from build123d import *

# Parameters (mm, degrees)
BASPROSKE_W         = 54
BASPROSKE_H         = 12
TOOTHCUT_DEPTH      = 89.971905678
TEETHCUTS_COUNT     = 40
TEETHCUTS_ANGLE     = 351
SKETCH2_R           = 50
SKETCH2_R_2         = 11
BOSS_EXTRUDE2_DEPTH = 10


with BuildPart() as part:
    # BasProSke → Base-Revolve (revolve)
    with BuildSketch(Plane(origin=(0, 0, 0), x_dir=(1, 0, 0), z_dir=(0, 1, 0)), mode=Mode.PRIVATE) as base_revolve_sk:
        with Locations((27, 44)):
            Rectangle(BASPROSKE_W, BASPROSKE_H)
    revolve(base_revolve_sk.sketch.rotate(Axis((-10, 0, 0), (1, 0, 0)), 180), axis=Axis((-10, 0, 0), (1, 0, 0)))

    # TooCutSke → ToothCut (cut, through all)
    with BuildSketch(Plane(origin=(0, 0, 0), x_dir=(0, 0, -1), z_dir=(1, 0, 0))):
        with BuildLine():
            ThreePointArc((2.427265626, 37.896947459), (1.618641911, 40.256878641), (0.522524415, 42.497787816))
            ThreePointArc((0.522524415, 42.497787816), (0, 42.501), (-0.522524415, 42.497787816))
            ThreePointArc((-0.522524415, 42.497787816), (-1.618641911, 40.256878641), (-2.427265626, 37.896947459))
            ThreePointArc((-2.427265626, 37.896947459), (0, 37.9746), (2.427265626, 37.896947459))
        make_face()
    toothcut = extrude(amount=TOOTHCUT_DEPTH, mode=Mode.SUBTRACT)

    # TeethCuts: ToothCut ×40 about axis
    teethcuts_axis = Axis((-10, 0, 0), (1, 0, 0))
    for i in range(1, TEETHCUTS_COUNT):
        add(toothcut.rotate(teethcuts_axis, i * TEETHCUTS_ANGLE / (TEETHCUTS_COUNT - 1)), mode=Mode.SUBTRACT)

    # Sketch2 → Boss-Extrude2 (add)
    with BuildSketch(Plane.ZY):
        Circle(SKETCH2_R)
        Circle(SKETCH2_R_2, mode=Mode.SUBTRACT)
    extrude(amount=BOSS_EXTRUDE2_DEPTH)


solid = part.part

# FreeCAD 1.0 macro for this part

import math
import FreeCAD as App
import Part
import Sketcher

doc = App.newDocument("Part")
body = doc.addObject("PartDesign::Body", "Body")

sketch1 = doc.addObject("Sketcher::SketchObject", "Sketch")
body.addObject(sketch1)
sketch1.AttachmentSupport = (doc.XZ_Plane, [""])
sketch1.MapMode = "FlatFace"
sketch1.addGeometry(Part.LineSegment(App.Vector(0, -50, 0), App.Vector(0, -38, 0)), False)
sketch1.addGeometry(Part.LineSegment(App.Vector(0, -38, 0), App.Vector(54, -38, 0)), False)
sketch1.addGeometry(Part.LineSegment(App.Vector(54, -38, 0), App.Vector(54, -50, 0)), False)
sketch1.addGeometry(Part.LineSegment(App.Vector(54, -50, 0), App.Vector(0, -50, 0)), False)
sketch1.addConstraint(Sketcher.Constraint("Coincident", 0, 2, 1, 1))
sketch1.addConstraint(Sketcher.Constraint("Coincident", 1, 2, 2, 1))
sketch1.addConstraint(Sketcher.Constraint("Coincident", 2, 2, 3, 1))
sketch1.addConstraint(Sketcher.Constraint("Coincident", 3, 2, 0, 1))
sketch1.addConstraint(Sketcher.Constraint("Vertical", 0))
sketch1.addConstraint(Sketcher.Constraint("Horizontal", 1))
sketch1.addConstraint(Sketcher.Constraint("Vertical", 2))
sketch1.addConstraint(Sketcher.Constraint("Horizontal", 3))
sketch1.addConstraint(Sketcher.Constraint("PointOnObject", 0, 2, -2))
sketch1.addConstraint(Sketcher.Constraint("DistanceX", 1, 1, 1, 2, 54.0))
sketch1.addConstraint(Sketcher.Constraint("DistanceY", 0, 1, 0, 2, 12.0))
sketch1.addConstraint(Sketcher.Constraint("DistanceY", 0, 2, -1, 1, 38.0))
revolution = doc.addObject("PartDesign::Revolution", "Revolution")
body.addObject(revolution)
revolution.Profile = sketch1
revolution.ReferenceAxis = (sketch1, ["H_Axis"])
revolution.Angle = 360

sketch2 = doc.addObject("Sketcher::SketchObject", "Sketch001")
body.addObject(sketch2)
sketch2.AttachmentSupport = (doc.YZ_Plane, [""])
sketch2.MapMode = "FlatFace"
sketch2.addGeometry(Part.ArcOfCircle(Part.Circle(App.Vector(32.6, 16.9, 0), App.Vector(0, 0, 1), 20), math.radians(-74.66), math.radians(-60.36)), False)
sketch2.addGeometry(Part.ArcOfCircle(Part.Circle(App.Vector(0, 0, 0), App.Vector(0, 0, 1), 42.5), math.radians(-0.7), math.radians(0.7)), False)
sketch2.addGeometry(Part.ArcOfCircle(Part.Circle(App.Vector(32.6, -16.9, 0), App.Vector(0, 0, 1), 20), math.radians(60.36), math.radians(74.66)), False)
sketch2.addGeometry(Part.ArcOfCircle(Part.Circle(App.Vector(0, 0, 0), App.Vector(0, 0, 1), 38), math.radians(-3.66), math.radians(3.66)), False)
sketch2.addConstraint(Sketcher.Constraint("Coincident", 0, 2, 1, 1))
sketch2.addConstraint(Sketcher.Constraint("Coincident", 1, 2, 2, 1))
sketch2.addConstraint(Sketcher.Constraint("Coincident", 2, 2, 3, 2))
sketch2.addConstraint(Sketcher.Constraint("Coincident", 3, 1, 0, 1))
sketch2.addConstraint(Sketcher.Constraint("Coincident", 1, 3, -1, 1))
sketch2.addConstraint(Sketcher.Constraint("Coincident", 3, 3, -1, 1))
sketch2.addConstraint(Sketcher.Constraint("Equal", 0, 2))
sketch2.addConstraint(Sketcher.Constraint("Symmetric", 0, 3, 2, 3, -1))
sketch2.addConstraint(Sketcher.Constraint("Radius", 0, 20.0))
sketch2.addConstraint(Sketcher.Constraint("Radius", 3, 37.9746))
sketch2.addConstraint(Sketcher.Constraint("Radius", 1, 42.501003))
sketch2.addConstraint(Sketcher.Constraint("DistanceX", -1, 1, 0, 3, 32.606602))
sketch2.addConstraint(Sketcher.Constraint("DistanceY", 2, 3, 0, 2, 16.337829))
pocket1 = doc.addObject("PartDesign::Pocket", "Pocket")
body.addObject(pocket1)
pocket1.Profile = sketch2
pocket1.Type = "ThroughAll"
pocket1.Reversed = True
doc.recompute()

polarpattern = doc.addObject("PartDesign::PolarPattern", "PolarPattern")
body.addObject(polarpattern)
polarpattern.Originals = [pocket1]
polarpattern.Axis = (doc.X_Axis, [""])
polarpattern.Angle = 360
polarpattern.Occurrences = 40
body.Tip = polarpattern

sketch3 = doc.addObject("Sketcher::SketchObject", "Sketch002")
body.addObject(sketch3)
sketch3.AttachmentSupport = (doc.YZ_Plane, [""])
sketch3.MapMode = "FlatFace"
sketch3.addGeometry(Part.Circle(App.Vector(0, 0, 0), App.Vector(0, 0, 1), 50), False)
sketch3.addGeometry(Part.Circle(App.Vector(0, 0, 0), App.Vector(0, 0, 1), 11), False)
sketch3.addConstraint(Sketcher.Constraint("Coincident", 0, 3, -1, 1))
sketch3.addConstraint(Sketcher.Constraint("Coincident", 1, 3, -1, 1))
sketch3.addConstraint(Sketcher.Constraint("Diameter", 0, 100.0))
sketch3.addConstraint(Sketcher.Constraint("Diameter", 1, 22.0))
pad1 = doc.addObject("PartDesign::Pad", "Pad")
body.addObject(pad1)
pad1.Profile = sketch3
pad1.Length = 10
pad1.Reversed = True

doc.recompute()
